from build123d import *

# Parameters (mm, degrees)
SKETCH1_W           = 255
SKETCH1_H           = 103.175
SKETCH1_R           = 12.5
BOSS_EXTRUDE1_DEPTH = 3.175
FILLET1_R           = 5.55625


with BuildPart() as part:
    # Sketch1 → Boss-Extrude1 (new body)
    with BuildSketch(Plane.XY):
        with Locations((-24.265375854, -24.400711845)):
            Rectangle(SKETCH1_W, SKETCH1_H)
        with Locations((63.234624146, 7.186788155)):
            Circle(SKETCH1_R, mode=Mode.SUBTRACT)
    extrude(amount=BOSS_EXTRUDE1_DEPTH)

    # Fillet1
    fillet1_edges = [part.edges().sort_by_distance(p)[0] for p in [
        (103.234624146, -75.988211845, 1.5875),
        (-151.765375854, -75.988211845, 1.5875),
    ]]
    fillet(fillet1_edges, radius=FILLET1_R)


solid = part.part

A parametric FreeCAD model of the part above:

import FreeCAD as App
import Part
import Sketcher
Q = App.Units.Quantity


def edges_at(feature, points):
    """Names of the edges that pass closest to the given points."""
    edges = feature.Shape.Edges
    near = lambda p: min(range(len(edges)), key=lambda i: edges[i].distToShape(Part.Vertex(*p))[0])
    return sorted({f"Edge{near(p) + 1}" for p in points})

doc = App.newDocument("Part")
params = doc.addObject("Spreadsheet::Sheet", "Params")
for row, (alias, value) in enumerate([
    ("sketch1_diameter", "25 mm"),
    ("sketch1_width", "255 mm"),
    ("pad1_length", "3.175 mm"),
    ("fillet_radius", "5.55625 mm"),
], start=1):
    params.set(f"A{row}", alias)
    params.set(f"B{row}", "=" + value)
    params.setAlias(f"B{row}", alias)

body = doc.addObject("PartDesign::Body", "Body")

# Sketch on XY plane
sketch1 = body.newObject("Sketcher::SketchObject", "Sketch")
sketch1.AttachmentSupport = (doc.getObject("XY_Plane"), [""])
sketch1.MapMode = "FlatFace"
sketch1.addGeometry([
    Part.LineSegment(App.Vector(-151.765376, 27.186788, 0), App.Vector(-151.765376, -75.988212, 0)),  # 0
    Part.LineSegment(App.Vector(-151.765376, -75.988212, 0), App.Vector(103.234624, -75.988212, 0)),  # 1
    Part.LineSegment(App.Vector(103.234624, -75.988212, 0), App.Vector(103.234624, 27.186788, 0)),  # 2
    Part.LineSegment(App.Vector(103.234624, 27.186788, 0), App.Vector(-151.765376, 27.186788, 0)),  # 3
    Part.Circle(App.Vector(63.234624, 7.186788, 0), App.Vector(0, 0, 1), 12.5),  # 4
], False)
sketch1.addConstraint([
    Sketcher.Constraint("Coincident", 0, 2, 1, 1),
    Sketcher.Constraint("Coincident", 1, 2, 2, 1),
    Sketcher.Constraint("Coincident", 2, 2, 3, 1),
    Sketcher.Constraint("Coincident", 3, 2, 0, 1),
    Sketcher.Constraint("Vertical", 0),
    Sketcher.Constraint("Horizontal", 1),
    Sketcher.Constraint("Vertical", 2),
    Sketcher.Constraint("Horizontal", 3),
    Sketcher.Constraint("Diameter", 4, Q("25 mm")),
    Sketcher.Constraint("DistanceX", 1, 1, 1, 2, Q("255 mm")),
    Sketcher.Constraint("DistanceX", 0, 2, 4, 3, Q("215 mm")),
    Sketcher.Constraint("DistanceY", 4, 3, 2, 2, Q("20 mm")),
    Sketcher.Constraint("DistanceY", 0, 2, 0, 1, Q("103.175 mm")),
    Sketcher.Constraint("DistanceY", -1, 1, 4, 3, Q("7.186788 mm")),
    Sketcher.Constraint("DistanceX", -1, 1, 4, 3, Q("63.234624 mm")),
])
sketch1.setExpression("Constraints[8]", "Params.sketch1_diameter")
sketch1.setExpression("Constraints[9]", "Params.sketch1_width")
pad1 = body.newObject("PartDesign::Pad", "Pad")
pad1.Profile = sketch1
pad1.setExpression("Length", "Params.pad1_length")
doc.recompute()

fillet = body.newObject("PartDesign::Fillet", "Fillet")
fillet.Base = (pad1, edges_at(pad1, [(103.235, -75.988, 1.587), (-151.765, -75.988, 1.587)]))
fillet.setExpression("Radius", "Params.fillet_radius")

doc.recompute()
